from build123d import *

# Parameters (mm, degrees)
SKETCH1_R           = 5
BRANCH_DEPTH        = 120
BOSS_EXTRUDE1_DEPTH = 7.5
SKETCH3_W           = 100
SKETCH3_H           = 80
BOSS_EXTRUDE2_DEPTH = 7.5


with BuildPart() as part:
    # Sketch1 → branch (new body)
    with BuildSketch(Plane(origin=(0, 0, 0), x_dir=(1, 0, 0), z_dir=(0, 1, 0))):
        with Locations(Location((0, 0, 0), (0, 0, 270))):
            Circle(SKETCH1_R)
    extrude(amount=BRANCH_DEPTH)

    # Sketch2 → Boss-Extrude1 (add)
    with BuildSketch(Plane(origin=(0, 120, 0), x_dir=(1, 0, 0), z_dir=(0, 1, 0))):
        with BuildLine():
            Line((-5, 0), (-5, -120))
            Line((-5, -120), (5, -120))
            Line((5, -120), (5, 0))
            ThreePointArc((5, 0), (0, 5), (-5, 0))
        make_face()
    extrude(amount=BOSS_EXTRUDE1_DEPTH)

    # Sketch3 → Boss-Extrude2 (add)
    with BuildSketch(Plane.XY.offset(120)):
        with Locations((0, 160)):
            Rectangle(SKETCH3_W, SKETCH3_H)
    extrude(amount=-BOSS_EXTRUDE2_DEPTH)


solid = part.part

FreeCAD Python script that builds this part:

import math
import FreeCAD as App
import Part
import Sketcher

V = App.Vector
Q = App.Units.Quantity


def add_polygon(sketch, points):
    """Adds a closed chain of lines whose ends are joined by coincident constraints."""
    first, n = sketch.GeometryCount, len(points)
    for a, b in zip(points, points[1:] + points[:1]):
        sketch.addGeometry(Part.LineSegment(App.Vector(*a, 0), App.Vector(*b, 0)), False)
    for i in range(n):
        sketch.addConstraint(Sketcher.Constraint("Coincident", first + i, 2, first + (i + 1) % n, 1))

doc = App.newDocument("Part")
body = doc.addObject("PartDesign::Body", "Body")

sketch1 = body.newObject("Sketcher::SketchObject", "Sketch")
sketch1.AttachmentSupport = (doc.getObject("XZ_Plane"), [""])
sketch1.MapMode = "FlatFace"
sketch1.addGeometry(Part.Circle(V(0, 0, 0), V(0, 0, 1), 5), False)
sketch1.addConstraint([
    Sketcher.Constraint("Coincident", 0, 3, -1, 1),
    Sketcher.Constraint("Diameter", 0, Q("10 mm")),
])
pad1 = body.newObject("PartDesign::Pad", "Pad")
pad1.Profile = sketch1
pad1.Length = 120
pad1.Reversed = True

sketch2 = body.newObject("Sketcher::SketchObject", "Sketch001")
sketch2.AttachmentSupport = (doc.getObject("XZ_Plane"), [""])
sketch2.MapMode = "FlatFace"
sketch2.AttachmentOffset = App.Placement(V(0, 0, -120), App.Rotation())
sketch2.addGeometry([
    Part.LineSegment(V(-5, 0, 0), V(-5, 120, 0)),
    Part.LineSegment(V(-5, 120, 0), V(5, 120, 0)),
    Part.LineSegment(V(5, 120, 0), V(5, 0, 0)),
    Part.ArcOfCircle(Part.Circle(V(0, 0, 0), V(0, 0, 1), 5), math.radians(180), math.radians(360)),
], False)
sketch2.addConstraint([
    Sketcher.Constraint("Coincident", 0, 2, 1, 1),
    Sketcher.Constraint("Coincident", 1, 2, 2, 1),
    Sketcher.Constraint("Tangent", 2, 2, 3, 2),
    Sketcher.Constraint("Tangent", 3, 1, 0, 1),
    Sketcher.Constraint("Vertical", 0),
    Sketcher.Constraint("Horizontal", 1),
    Sketcher.Constraint("Vertical", 2),
    Sketcher.Constraint("Coincident", 3, 3, -1, 1),
    Sketcher.Constraint("Radius", 3, Q("5 mm")),
    Sketcher.Constraint("DistanceY", 0, 1, 0, 2, Q("120 mm")),
])
pad2 = body.newObject("PartDesign::Pad", "Pad001")
pad2.Profile = sketch2
pad2.Length = 7.5
pad2.Reversed = True

sketch3 = body.newObject("Sketcher::SketchObject", "Sketch002")
sketch3.AttachmentSupport = (doc.getObject("XY_Plane"), [""])
sketch3.MapMode = "FlatFace"
sketch3.AttachmentOffset = App.Placement(V(0, 0, 120), App.Rotation())
add_polygon(sketch3, [(-50, 200), (-50, 120), (50, 120), (50, 200)])
sketch3.addConstraint([
    Sketcher.Constraint("Vertical", 0),
    Sketcher.Constraint("Horizontal", 1),
    Sketcher.Constraint("Vertical", 2),
    Sketcher.Constraint("Horizontal", 3),
    Sketcher.Constraint("DistanceX", 1, 1, 1, 2, Q("100 mm")),
    Sketcher.Constraint("DistanceY", 0, 2, 0, 1, Q("80 mm")),
    Sketcher.Constraint("DistanceX", 0, 2, -1, 1, Q("50 mm")),
    Sketcher.Constraint("DistanceY", -1, 1, 0, 2, Q("120 mm")),
])
pad3 = body.newObject("PartDesign::Pad", "Pad002")
pad3.Profile = sketch3
pad3.Length = 7.5
pad3.Reversed = True

doc.recompute()
